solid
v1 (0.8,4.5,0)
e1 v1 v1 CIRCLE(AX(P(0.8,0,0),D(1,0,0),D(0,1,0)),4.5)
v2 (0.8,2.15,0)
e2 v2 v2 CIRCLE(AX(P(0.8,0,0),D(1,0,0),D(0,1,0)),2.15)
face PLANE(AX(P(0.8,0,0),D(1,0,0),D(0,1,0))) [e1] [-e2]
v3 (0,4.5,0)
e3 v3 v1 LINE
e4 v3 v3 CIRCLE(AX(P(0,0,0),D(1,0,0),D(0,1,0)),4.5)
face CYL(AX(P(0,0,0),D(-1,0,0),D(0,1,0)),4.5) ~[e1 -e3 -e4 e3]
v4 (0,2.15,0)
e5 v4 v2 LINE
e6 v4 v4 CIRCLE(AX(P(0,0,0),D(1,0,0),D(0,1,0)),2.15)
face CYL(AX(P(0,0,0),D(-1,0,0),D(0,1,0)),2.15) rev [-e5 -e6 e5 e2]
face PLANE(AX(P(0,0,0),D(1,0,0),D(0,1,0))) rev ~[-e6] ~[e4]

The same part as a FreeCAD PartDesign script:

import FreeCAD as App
import Part
import Sketcher
from FreeCAD import Vector
Q = App.Units.Quantity

doc = App.newDocument("Part")
params = doc.addObject("Spreadsheet::Sheet", "Params")
for row, (alias, value) in enumerate([
    ("sketch1_diameter", "9 mm"),
    ("sketch1_diameter2", "4.3 mm"),
    ("pad1_length", "0.8 mm"),
], start=1):
    params.set(f"A{row}", alias)
    params.set(f"B{row}", "=" + value)
    params.setAlias(f"B{row}", alias)

body = doc.addObject("PartDesign::Body", "Body")

# Sketch on YZ plane
sketch1 = body.newObject("Sketcher::SketchObject", "Sketch")
sketch1.AttachmentSupport = (doc.getObject("YZ_Plane"), [""])
sketch1.MapMode = "FlatFace"
sketch1.addGeometry([
    Part.Circle(Vector(0, 0, 0), Vector(0, 0, 1), 4.5),
    Part.Circle(Vector(0, 0, 0), Vector(0, 0, 1), 2.15),
], False)
sketch1.addConstraint([
    Sketcher.Constraint("Coincident", 0, 3, -1, 1),
    Sketcher.Constraint("Coincident", 1, 3, -1, 1),
    Sketcher.Constraint("Diameter", 0, Q("9 mm")),
    Sketcher.Constraint("Diameter", 1, Q("4.3 mm")),
])
sketch1.setExpression("Constraints[2]", "Params.sketch1_diameter")
sketch1.setExpression("Constraints[3]", "Params.sketch1_diameter2")
pad1 = body.newObject("PartDesign::Pad", "Pad")
pad1.Profile = sketch1
pad1.setExpression("Length", "Params.pad1_length")

doc.recompute()
